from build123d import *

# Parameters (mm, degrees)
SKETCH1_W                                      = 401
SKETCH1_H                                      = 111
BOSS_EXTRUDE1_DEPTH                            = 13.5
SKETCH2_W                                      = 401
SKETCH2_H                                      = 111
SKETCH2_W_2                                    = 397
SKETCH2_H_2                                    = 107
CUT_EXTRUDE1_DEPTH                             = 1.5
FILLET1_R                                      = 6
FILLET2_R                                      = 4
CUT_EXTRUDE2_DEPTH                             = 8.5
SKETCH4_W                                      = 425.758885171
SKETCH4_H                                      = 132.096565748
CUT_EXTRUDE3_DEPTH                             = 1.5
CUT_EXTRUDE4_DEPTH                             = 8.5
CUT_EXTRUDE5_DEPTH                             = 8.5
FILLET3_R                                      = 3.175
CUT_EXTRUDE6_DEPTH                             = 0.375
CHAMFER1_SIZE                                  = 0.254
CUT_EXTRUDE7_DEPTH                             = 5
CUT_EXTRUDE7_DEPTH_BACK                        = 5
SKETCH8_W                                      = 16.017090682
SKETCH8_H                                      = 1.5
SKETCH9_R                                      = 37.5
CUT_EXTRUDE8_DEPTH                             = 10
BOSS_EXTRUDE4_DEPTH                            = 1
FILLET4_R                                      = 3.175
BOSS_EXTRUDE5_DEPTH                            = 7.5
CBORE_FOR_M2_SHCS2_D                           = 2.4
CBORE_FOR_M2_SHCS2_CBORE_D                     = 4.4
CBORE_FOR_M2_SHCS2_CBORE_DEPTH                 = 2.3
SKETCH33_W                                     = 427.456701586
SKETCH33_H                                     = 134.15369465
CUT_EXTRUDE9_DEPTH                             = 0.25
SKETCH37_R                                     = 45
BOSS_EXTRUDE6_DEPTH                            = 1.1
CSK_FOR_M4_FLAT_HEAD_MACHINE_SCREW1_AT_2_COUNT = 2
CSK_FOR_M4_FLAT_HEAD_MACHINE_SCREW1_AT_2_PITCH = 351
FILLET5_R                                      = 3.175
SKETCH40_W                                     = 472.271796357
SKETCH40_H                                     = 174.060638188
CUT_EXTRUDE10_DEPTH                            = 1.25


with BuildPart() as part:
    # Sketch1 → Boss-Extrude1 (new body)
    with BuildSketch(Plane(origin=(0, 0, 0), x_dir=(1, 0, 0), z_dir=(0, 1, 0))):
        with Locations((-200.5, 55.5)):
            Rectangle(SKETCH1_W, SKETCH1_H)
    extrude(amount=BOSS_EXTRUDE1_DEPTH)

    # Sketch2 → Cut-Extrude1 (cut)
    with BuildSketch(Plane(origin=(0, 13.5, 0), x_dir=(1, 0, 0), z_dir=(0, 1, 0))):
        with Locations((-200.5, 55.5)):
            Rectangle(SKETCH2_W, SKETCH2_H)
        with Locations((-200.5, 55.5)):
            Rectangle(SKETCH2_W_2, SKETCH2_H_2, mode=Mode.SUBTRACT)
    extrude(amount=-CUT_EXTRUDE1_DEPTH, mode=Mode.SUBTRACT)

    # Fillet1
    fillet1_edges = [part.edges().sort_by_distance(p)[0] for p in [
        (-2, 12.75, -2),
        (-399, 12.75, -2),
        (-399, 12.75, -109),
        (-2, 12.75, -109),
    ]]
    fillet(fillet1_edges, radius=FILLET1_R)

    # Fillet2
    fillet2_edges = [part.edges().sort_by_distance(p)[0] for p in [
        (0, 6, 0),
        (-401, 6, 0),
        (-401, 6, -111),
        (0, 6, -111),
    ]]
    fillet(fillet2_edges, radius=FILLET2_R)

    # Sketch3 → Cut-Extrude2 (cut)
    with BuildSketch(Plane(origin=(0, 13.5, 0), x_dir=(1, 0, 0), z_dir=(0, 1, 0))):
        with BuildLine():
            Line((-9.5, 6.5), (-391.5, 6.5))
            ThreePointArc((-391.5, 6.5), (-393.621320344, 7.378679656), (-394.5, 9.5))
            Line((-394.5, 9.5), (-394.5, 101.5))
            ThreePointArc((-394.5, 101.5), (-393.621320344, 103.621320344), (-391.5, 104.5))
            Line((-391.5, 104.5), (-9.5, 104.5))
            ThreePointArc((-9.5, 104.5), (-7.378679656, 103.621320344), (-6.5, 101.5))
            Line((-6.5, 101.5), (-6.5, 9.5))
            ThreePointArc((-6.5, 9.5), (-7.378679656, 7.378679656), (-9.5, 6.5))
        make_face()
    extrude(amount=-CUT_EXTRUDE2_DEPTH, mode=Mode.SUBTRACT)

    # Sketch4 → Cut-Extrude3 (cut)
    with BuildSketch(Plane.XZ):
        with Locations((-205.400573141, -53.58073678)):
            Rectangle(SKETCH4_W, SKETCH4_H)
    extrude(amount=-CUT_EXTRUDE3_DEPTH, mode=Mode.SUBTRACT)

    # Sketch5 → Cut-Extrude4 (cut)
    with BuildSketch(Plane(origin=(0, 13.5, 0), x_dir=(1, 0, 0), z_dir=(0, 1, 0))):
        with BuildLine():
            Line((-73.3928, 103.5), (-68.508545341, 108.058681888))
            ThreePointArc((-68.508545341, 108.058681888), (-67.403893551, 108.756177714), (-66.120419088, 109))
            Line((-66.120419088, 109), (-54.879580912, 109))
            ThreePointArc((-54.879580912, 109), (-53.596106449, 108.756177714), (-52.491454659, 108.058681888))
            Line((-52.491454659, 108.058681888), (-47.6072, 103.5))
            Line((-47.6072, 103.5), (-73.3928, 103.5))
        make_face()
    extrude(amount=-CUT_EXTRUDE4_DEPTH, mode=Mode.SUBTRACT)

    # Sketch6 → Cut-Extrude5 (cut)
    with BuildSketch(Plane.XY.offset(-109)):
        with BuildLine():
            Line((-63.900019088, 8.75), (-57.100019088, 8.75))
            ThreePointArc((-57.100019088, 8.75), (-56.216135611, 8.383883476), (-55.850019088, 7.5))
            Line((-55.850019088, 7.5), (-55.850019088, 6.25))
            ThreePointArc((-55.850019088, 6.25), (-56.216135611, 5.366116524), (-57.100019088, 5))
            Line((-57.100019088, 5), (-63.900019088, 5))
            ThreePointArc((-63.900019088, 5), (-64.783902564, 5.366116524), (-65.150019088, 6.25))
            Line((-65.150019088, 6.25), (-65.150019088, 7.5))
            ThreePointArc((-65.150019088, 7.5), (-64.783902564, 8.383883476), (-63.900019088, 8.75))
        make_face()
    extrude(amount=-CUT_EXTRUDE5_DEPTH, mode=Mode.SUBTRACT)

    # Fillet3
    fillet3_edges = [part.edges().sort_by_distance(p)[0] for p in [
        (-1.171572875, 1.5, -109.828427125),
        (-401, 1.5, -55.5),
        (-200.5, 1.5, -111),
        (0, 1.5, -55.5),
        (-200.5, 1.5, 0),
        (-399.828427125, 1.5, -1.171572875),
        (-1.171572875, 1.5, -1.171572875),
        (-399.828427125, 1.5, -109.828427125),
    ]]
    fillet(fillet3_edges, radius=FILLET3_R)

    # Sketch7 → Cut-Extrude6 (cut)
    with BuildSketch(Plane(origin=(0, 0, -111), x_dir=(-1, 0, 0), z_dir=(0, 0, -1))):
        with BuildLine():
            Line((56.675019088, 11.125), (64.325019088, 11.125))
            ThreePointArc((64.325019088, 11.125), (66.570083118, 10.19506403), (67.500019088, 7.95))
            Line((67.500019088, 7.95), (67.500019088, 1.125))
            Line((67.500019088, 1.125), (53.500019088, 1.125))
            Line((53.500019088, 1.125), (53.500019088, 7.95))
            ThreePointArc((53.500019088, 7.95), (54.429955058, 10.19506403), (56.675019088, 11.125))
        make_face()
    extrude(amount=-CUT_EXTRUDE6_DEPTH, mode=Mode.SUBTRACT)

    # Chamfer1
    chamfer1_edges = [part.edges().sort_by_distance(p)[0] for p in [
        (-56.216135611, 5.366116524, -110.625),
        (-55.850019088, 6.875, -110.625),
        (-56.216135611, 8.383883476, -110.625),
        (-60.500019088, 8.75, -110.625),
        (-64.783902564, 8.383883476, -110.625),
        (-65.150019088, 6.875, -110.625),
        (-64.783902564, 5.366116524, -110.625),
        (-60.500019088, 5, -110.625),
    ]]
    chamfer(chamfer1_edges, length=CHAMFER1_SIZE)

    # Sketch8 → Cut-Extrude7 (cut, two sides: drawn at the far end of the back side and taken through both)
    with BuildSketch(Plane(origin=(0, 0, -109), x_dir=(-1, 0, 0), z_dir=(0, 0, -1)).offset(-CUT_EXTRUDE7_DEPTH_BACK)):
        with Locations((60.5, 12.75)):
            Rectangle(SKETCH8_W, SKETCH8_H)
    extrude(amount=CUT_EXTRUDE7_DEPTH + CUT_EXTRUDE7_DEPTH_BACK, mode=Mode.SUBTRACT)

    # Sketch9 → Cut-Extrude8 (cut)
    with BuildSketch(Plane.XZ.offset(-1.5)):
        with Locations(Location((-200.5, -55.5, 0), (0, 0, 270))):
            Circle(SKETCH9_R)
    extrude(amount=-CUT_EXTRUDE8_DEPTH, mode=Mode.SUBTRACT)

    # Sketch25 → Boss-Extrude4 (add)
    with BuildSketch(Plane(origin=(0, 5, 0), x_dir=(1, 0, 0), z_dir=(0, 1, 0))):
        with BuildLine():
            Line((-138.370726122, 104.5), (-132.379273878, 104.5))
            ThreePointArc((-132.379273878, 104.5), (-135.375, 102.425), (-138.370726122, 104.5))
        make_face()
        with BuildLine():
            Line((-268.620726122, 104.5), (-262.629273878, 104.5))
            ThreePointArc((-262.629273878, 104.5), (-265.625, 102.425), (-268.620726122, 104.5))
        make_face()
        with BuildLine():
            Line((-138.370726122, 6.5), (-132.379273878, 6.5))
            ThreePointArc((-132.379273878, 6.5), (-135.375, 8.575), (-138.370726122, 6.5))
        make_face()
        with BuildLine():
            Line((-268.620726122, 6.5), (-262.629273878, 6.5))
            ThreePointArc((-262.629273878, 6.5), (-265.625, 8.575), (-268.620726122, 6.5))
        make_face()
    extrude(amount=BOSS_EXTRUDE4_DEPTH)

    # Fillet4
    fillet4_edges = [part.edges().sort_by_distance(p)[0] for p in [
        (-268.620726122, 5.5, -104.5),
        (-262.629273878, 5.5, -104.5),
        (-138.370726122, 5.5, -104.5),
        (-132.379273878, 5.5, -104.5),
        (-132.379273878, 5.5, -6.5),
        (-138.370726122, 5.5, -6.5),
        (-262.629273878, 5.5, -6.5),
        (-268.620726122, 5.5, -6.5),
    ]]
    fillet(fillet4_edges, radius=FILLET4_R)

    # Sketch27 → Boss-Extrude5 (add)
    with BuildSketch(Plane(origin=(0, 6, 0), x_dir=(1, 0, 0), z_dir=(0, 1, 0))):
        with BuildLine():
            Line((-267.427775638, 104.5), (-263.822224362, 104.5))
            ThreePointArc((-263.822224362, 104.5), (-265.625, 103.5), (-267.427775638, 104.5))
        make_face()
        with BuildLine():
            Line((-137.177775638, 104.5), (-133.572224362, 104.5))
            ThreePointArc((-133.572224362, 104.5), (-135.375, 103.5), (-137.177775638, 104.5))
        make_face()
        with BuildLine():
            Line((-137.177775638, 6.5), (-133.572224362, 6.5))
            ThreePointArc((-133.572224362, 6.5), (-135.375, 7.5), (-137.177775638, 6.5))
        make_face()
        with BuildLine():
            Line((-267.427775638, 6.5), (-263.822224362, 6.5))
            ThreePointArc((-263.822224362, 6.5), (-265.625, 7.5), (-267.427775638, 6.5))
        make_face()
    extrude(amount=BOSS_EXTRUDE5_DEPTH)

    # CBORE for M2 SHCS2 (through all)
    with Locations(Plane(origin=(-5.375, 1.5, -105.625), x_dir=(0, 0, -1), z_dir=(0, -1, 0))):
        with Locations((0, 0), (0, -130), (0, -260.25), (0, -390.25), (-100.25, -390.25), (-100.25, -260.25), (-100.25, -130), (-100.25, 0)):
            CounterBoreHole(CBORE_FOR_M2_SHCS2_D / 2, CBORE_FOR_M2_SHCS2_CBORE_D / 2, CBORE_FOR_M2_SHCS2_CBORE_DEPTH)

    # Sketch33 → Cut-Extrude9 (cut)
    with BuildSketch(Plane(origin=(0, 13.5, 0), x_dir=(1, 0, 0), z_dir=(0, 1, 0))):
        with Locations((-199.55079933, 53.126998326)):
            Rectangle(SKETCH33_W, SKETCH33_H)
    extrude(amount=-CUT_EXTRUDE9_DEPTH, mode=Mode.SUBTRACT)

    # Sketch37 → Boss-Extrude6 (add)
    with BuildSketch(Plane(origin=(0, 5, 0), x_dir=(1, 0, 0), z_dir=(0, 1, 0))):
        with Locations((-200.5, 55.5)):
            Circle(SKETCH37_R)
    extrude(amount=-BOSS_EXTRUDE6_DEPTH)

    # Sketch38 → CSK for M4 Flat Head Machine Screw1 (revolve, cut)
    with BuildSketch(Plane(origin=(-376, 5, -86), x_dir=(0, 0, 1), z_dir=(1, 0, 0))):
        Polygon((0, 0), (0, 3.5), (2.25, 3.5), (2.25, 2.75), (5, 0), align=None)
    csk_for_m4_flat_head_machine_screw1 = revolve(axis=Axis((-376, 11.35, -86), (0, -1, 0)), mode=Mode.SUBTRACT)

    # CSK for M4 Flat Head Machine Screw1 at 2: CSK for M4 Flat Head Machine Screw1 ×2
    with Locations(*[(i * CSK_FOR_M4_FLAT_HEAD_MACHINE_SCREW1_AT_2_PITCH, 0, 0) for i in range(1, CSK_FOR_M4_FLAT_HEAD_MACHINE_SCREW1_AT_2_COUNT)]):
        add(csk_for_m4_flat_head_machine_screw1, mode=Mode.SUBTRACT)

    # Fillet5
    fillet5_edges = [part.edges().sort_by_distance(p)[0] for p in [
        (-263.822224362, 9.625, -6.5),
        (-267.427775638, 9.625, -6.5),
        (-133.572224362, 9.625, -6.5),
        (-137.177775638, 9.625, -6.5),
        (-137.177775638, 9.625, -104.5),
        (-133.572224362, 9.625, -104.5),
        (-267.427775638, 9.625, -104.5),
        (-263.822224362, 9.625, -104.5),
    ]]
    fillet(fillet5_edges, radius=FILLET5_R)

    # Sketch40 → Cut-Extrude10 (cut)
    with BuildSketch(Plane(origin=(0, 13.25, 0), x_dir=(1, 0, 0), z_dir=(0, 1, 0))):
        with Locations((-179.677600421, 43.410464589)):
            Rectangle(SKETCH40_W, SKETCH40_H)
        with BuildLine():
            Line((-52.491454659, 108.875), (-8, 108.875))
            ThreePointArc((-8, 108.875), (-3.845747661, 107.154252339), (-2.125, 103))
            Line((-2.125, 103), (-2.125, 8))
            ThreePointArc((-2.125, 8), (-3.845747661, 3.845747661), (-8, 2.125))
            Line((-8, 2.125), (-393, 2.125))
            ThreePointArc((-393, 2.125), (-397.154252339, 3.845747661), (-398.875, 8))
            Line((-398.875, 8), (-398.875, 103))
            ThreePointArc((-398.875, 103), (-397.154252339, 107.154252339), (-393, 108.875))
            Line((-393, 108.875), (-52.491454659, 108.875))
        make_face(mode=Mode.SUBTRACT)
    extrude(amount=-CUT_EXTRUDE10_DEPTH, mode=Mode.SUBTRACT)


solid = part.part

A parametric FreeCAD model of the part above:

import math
import FreeCAD as App
import Part
import Sketcher
Q = App.Units.Quantity


def edges_at(feature, points):
    """Names of the edges that pass closest to the given points."""
    edges = feature.Shape.Edges
    near = lambda p: min(range(len(edges)), key=lambda i: edges[i].distToShape(Part.Vertex(*p))[0])
    return sorted({f"Edge{near(p) + 1}" for p in points})

doc = App.newDocument("Part")
params = doc.addObject("Spreadsheet::Sheet", "Params")
for row, (alias, value) in enumerate([
    ("sketch1_width", "401 mm"),
    ("sketch1_height", "111 mm"),
    ("pad1_length", "13.5 mm"),
    ("sketch2_width", "401 mm"),
    ("sketch2_width2", "397 mm"),
    ("sketch2_height", "111 mm"),
    ("sketch2_height2", "107 mm"),
    ("pocket1_length", "1.5 mm"),
    ("fillet_radius", "6 mm"),
    ("fillet2_radius", "4 mm"),
    ("sketch3_radius", "3 mm"),
    ("sketch3_width", "382 mm"),
    ("sketch3_height", "92 mm"),
    ("pocket2_length", "8.5 mm"),
    ("pocket3_length", "1.5 mm"),
    ("sketch5_radius", "3.5 mm"),
    ("pocket4_length", "8.5 mm"),
    ("sketch6_radius", "1.25 mm"),
    ("sketch6_width", "6.8 mm"),
    ("sketch6_height", "1.25 mm"),
    ("pocket5_length", "8.5 mm"),
    ("fillet3_radius", "3.175 mm"),
    ("sketch7_width", "14 mm"),
    ("pocket6_length", "0.375 mm"),
    ("chamfer_size", "0.254 mm"),
    ("sketch8_height", "1.5 mm"),
    ("pocket7_length", "5 mm"),
    ("pocket7_length2", "5 mm"),
    ("sketch9_diameter", "75 mm"),
    ("pocket8_length", "10 mm"),
    ("sketch10_radius", "3.2 mm"),
    ("pad2_length", "1 mm"),
    ("fillet4_radius", "3.175 mm"),
    ("pad3_length", "7.5 mm"),
    ("sketch12_diameter", "2.4 mm"),
    ("hole_diameter", "2.4 mm"),
    ("hole_cbore_diameter", "4.4 mm"),
    ("hole_cbore_depth", "2.3 mm"),
    ("pocket9_length", "0.25 mm"),
    ("sketch14_diameter", "90 mm"),
    ("pad4_length", "1.1 mm"),
    ("sketch15_height", "5 mm"),
    ("sketch15_width", "3.5 mm"),
    ("sketch15_width2", "0.75 mm"),
    ("groove_angle", "360 deg"),
    ("linearpattern_pitch", "351 mm"),
    ("fillet5_radius", "3.175 mm"),
    ("sketch16_width", "385 mm"),
    ("sketch16_height", "95 mm"),
    ("pocket10_length", "1.25 mm"),
], start=1):
    params.set(f"A{row}", alias)
    params.set(f"B{row}", "=" + value)
    params.setAlias(f"B{row}", alias)

body = doc.addObject("PartDesign::Body", "Body")

# Sketch on XZ plane
sketch1 = body.newObject("Sketcher::SketchObject", "Sketch")
sketch1.AttachmentSupport = (doc.getObject("XZ_Plane"), [""])
sketch1.MapMode = "FlatFace"
sketch1.addGeometry([
    Part.LineSegment(App.Vector(-401, -111, 0), App.Vector(-401, 0, 0)),
    Part.LineSegment(App.Vector(-401, 0, 0), App.Vector(0, 0, 0)),
    Part.LineSegment(App.Vector(0, 0, 0), App.Vector(0, -111, 0)),
    Part.LineSegment(App.Vector(0, -111, 0), App.Vector(-401, -111, 0)),
], False)
sketch1.addConstraint([
    Sketcher.Constraint("Coincident", 0, 2, 1, 1),
    Sketcher.Constraint("Coincident", 1, 2, 2, 1),
    Sketcher.Constraint("Coincident", 2, 2, 3, 1),
    Sketcher.Constraint("Coincident", 3, 2, 0, 1),
    Sketcher.Constraint("Vertical", 0),
    Sketcher.Constraint("Horizontal", 1),
    Sketcher.Constraint("Vertical", 2),
    Sketcher.Constraint("Horizontal", 3),
    Sketcher.Constraint("Coincident", 1, 2, -1, 1),
    Sketcher.Constraint("DistanceX", 1, 1, 1, 2, Q("401 mm")),
    Sketcher.Constraint("DistanceY", 0, 1, 0, 2, Q("111 mm")),
])
sketch1.setExpression("Constraints[9]", "Params.sketch1_width")
sketch1.setExpression("Constraints[10]", "Params.sketch1_height")
pad1 = body.newObject("PartDesign::Pad", "Pad")
pad1.Profile = sketch1
pad1.setExpression("Length", "Params.pad1_length")
pad1.Reversed = True

# Sketch on XZ plane
sketch2 = body.newObject("Sketcher::SketchObject", "Sketch001")
sketch2.AttachmentSupport = (doc.getObject("XZ_Plane"), [""])
sketch2.MapMode = "FlatFace"
sketch2.AttachmentOffset = App.Placement(App.Vector(0, 0, -13.5), App.Rotation())
sketch2.addGeometry([
    Part.LineSegment(App.Vector(-401, -111, 0), App.Vector(-401, 0, 0)),  # 0
    Part.LineSegment(App.Vector(-401, 0, 0), App.Vector(0, 0, 0)),  # 1
    Part.LineSegment(App.Vector(0, 0, 0), App.Vector(0, -111, 0)),  # 2
    Part.LineSegment(App.Vector(0, -111, 0), App.Vector(-401, -111, 0)),  # 3
    Part.LineSegment(App.Vector(-2, -2, 0), App.Vector(-399, -2, 0)),  # 4
    Part.LineSegment(App.Vector(-399, -2, 0), App.Vector(-399, -109, 0)),  # 5
    Part.LineSegment(App.Vector(-399, -109, 0), App.Vector(-2, -109, 0)),  # 6
    Part.LineSegment(App.Vector(-2, -109, 0), App.Vector(-2, -2, 0)),  # 7
], False)
sketch2.addConstraint([
    Sketcher.Constraint("Coincident", 0, 2, 1, 1),
    Sketcher.Constraint("Coincident", 1, 2, 2, 1),
    Sketcher.Constraint("Coincident", 2, 2, 3, 1),
    Sketcher.Constraint("Coincident", 3, 2, 0, 1),
    Sketcher.Constraint("Coincident", 4, 2, 5, 1),
    Sketcher.Constraint("Coincident", 5, 2, 6, 1),
    Sketcher.Constraint("Coincident", 6, 2, 7, 1),
    Sketcher.Constraint("Coincident", 7, 2, 4, 1),
    Sketcher.Constraint("Vertical", 0),
    Sketcher.Constraint("Horizontal", 1),
    Sketcher.Constraint("Vertical", 2),
    Sketcher.Constraint("Horizontal", 3),
    Sketcher.Constraint("Horizontal", 4),
    Sketcher.Constraint("Vertical", 5),
    Sketcher.Constraint("Horizontal", 6),
    Sketcher.Constraint("Vertical", 7),
    Sketcher.Constraint("Coincident", 1, 2, -1, 1),
    Sketcher.Constraint("DistanceX", 1, 1, 1, 2, Q("401 mm")),
    Sketcher.Constraint("DistanceX", 4, 2, 4, 1, Q("397 mm")),
    Sketcher.Constraint("DistanceY", 0, 1, 0, 2, Q("111 mm")),
    Sketcher.Constraint("DistanceY", 5, 2, 5, 1, Q("107 mm")),
    Sketcher.Constraint("DistanceX", 4, 2, -1, 1, Q("399 mm")),
    Sketcher.Constraint("DistanceY", 4, 2, -1, 1, Q("2 mm")),
])
sketch2.setExpression("Constraints[17]", "Params.sketch2_width")
sketch2.setExpression("Constraints[18]", "Params.sketch2_width2")
sketch2.setExpression("Constraints[19]", "Params.sketch2_height")
sketch2.setExpression("Constraints[20]", "Params.sketch2_height2")
pocket1 = body.newObject("PartDesign::Pocket", "Pocket")
pocket1.Profile = sketch2
pocket1.setExpression("Length", "Params.pocket1_length")
pocket1.Reversed = True
doc.recompute()

fillet = body.newObject("PartDesign::Fillet", "Fillet")
fillet.Base = (pocket1, edges_at(pocket1, [
    (-2, 12.75, -2),
    (-399, 12.75, -2),
    (-399, 12.75, -109),
    (-2, 12.75, -109),
]))
fillet.setExpression("Radius", "Params.fillet_radius")
doc.recompute()

fillet2 = body.newObject("PartDesign::Fillet", "Fillet001")
fillet2.Base = (fillet, edges_at(fillet, [
    (0, 6, 0),
    (-401, 6, 0),
    (-401, 6, -111),
    (0, 6, -111),
]))
fillet2.setExpression("Radius", "Params.fillet2_radius")

# Sketch on XZ plane
sketch3 = body.newObject("Sketcher::SketchObject", "Sketch002")
sketch3.AttachmentSupport = (doc.getObject("XZ_Plane"), [""])
sketch3.MapMode = "FlatFace"
sketch3.AttachmentOffset = App.Placement(App.Vector(0, 0, -13.5), App.Rotation())
sketch3.addGeometry([
    Part.LineSegment(App.Vector(-391.5, -6.5, 0), App.Vector(-9.5, -6.5, 0)),  # 0
    Part.ArcOfCircle(Part.Circle(App.Vector(-9.5, -9.5, 0), App.Vector(0, 0, 1), 3), math.radians(0), math.radians(90)),  # 1
    Part.LineSegment(App.Vector(-6.5, -9.5, 0), App.Vector(-6.5, -101.5, 0)),  # 2
    Part.ArcOfCircle(Part.Circle(App.Vector(-9.5, -101.5, 0), App.Vector(0, 0, 1), 3), math.radians(-90), math.radians(0)),  # 3
    Part.LineSegment(App.Vector(-9.5, -104.5, 0), App.Vector(-391.5, -104.5, 0)),  # 4
    Part.ArcOfCircle(Part.Circle(App.Vector(-391.5, -101.5, 0), App.Vector(0, 0, 1), 3), math.radians(180), math.radians(270)),  # 5
    Part.LineSegment(App.Vector(-394.5, -101.5, 0), App.Vector(-394.5, -9.5, 0)),  # 6
    Part.ArcOfCircle(Part.Circle(App.Vector(-391.5, -9.5, 0), App.Vector(0, 0, 1), 3), math.radians(90), math.radians(180)),  # 7
], False)
sketch3.addConstraint([
    Sketcher.Constraint("Tangent", 0, 2, 1, 2),
    Sketcher.Constraint("Tangent", 1, 1, 2, 1),
    Sketcher.Constraint("Tangent", 2, 2, 3, 2),
    Sketcher.Constraint("Tangent", 3, 1, 4, 1),
    Sketcher.Constraint("Tangent", 4, 2, 5, 2),
    Sketcher.Constraint("Tangent", 5, 1, 6, 1),
    Sketcher.Constraint("Tangent", 6, 2, 7, 2),
    Sketcher.Constraint("Tangent", 7, 1, 0, 1),
    Sketcher.Constraint("Horizontal", 0),
    Sketcher.Constraint("Vertical", 2),
    Sketcher.Constraint("Horizontal", 4),
    Sketcher.Constraint("Vertical", 6),
    Sketcher.Constraint("Equal", 1, 3),
    Sketcher.Constraint("Equal", 3, 5),
    Sketcher.Constraint("Equal", 5, 7),
    Sketcher.Constraint("Radius", 1, Q("3 mm")),
    Sketcher.Constraint("DistanceX", 0, 1, 0, 2, Q("382 mm")),
    Sketcher.Constraint("DistanceY", 2, 2, 2, 1, Q("92 mm")),
    Sketcher.Constraint("DistanceX", 1, 3, -1, 1, Q("9.5 mm")),
    Sketcher.Constraint("DistanceY", 1, 3, -1, 1, Q("9.5 mm")),
])
sketch3.setExpression("Constraints[15]", "Params.sketch3_radius")
sketch3.setExpression("Constraints[16]", "Params.sketch3_width")
sketch3.setExpression("Constraints[17]", "Params.sketch3_height")
pocket2 = body.newObject("PartDesign::Pocket", "Pocket001")
pocket2.Profile = sketch3
pocket2.setExpression("Length", "Params.pocket2_length")
pocket2.Reversed = True

# Sketch on XZ plane
sketch4 = body.newObject("Sketcher::SketchObject", "Sketch003")
sketch4.AttachmentSupport = (doc.getObject("XZ_Plane"), [""])
sketch4.MapMode = "FlatFace"
sketch4.addGeometry([
    Part.LineSegment(App.Vector(-418.280016, 12.467546, 0), App.Vector(-418.280016, -119.62902, 0)),
    Part.LineSegment(App.Vector(-418.280016, -119.62902, 0), App.Vector(7.478869, -119.62902, 0)),
    Part.LineSegment(App.Vector(7.478869, -119.62902, 0), App.Vector(7.478869, 12.467546, 0)),
    Part.LineSegment(App.Vector(7.478869, 12.467546, 0), App.Vector(-418.280016, 12.467546, 0)),
], False)
sketch4.addConstraint([
    Sketcher.Constraint("Coincident", 0, 2, 1, 1),
    Sketcher.Constraint("Coincident", 1, 2, 2, 1),
    Sketcher.Constraint("Coincident", 2, 2, 3, 1),
    Sketcher.Constraint("Coincident", 3, 2, 0, 1),
    Sketcher.Constraint("Vertical", 0),
    Sketcher.Constraint("Horizontal", 1),
    Sketcher.Constraint("Vertical", 2),
    Sketcher.Constraint("Horizontal", 3),
    Sketcher.Constraint("DistanceX", 1, 1, 1, 2, Q("425.758885 mm")),
    Sketcher.Constraint("DistanceY", 0, 2, 0, 1, Q("132.096566 mm")),
    Sketcher.Constraint("DistanceY", 0, 2, -1, 1, Q("119.62902 mm")),
    Sketcher.Constraint("DistanceX", -1, 1, 1, 2, Q("7.478869 mm")),
])
pocket3 = body.newObject("PartDesign::Pocket", "Pocket002")
pocket3.Profile = sketch4
pocket3.setExpression("Length", "Params.pocket3_length")

# Sketch on XZ plane
sketch5 = body.newObject("Sketcher::SketchObject", "Sketch004")
sketch5.AttachmentSupport = (doc.getObject("XZ_Plane"), [""])
sketch5.MapMode = "FlatFace"
sketch5.AttachmentOffset = App.Placement(App.Vector(0, 0, -13.5), App.Rotation())
sketch5.addGeometry([
    Part.LineSegment(App.Vector(-68.508545, -108.058682, 0), App.Vector(-73.3928, -103.5, 0)),  # 0
    Part.LineSegment(App.Vector(-73.3928, -103.5, 0), App.Vector(-47.6072, -103.5, 0)),  # 1
    Part.LineSegment(App.Vector(-47.6072, -103.5, 0), App.Vector(-52.491455, -108.058682, 0)),  # 2
    Part.ArcOfCircle(Part.Circle(App.Vector(-54.879581, -105.5, 0), App.Vector(0, 0, 1), 3.5), math.radians(-90), math.radians(-46.974657)),  # 3
    Part.LineSegment(App.Vector(-54.879581, -109, 0), App.Vector(-66.120419, -109, 0)),  # 4
    Part.ArcOfCircle(Part.Circle(App.Vector(-66.120419, -105.5, 0), App.Vector(0, 0, 1), 3.5), math.radians(-133.025343), math.radians(-90)),  # 5
], False)
sketch5.addConstraint([
    Sketcher.Constraint("Coincident", 0, 2, 1, 1),
    Sketcher.Constraint("Coincident", 1, 2, 2, 1),
    Sketcher.Constraint("Tangent", 2, 2, 3, 2),
    Sketcher.Constraint("Tangent", 3, 1, 4, 1),
    Sketcher.Constraint("Tangent", 4, 2, 5, 2),
    Sketcher.Constraint("Tangent", 5, 1, 0, 1),
    Sketcher.Constraint("Horizontal", 1),
    Sketcher.Constraint("Horizontal", 4),
    Sketcher.Constraint("Equal", 3, 5),
    Sketcher.Constraint("Horizontal", 2, 2, 5, 1),
    Sketcher.Constraint("Radius", 3, Q("3.5 mm")),
    Sketcher.Constraint("DistanceY", 3, 1, -1, 1, Q("109 mm")),
    Sketcher.Constraint("DistanceY", 5, 3, 0, 2, Q("2 mm")),
    Sketcher.Constraint("DistanceX", 1, 1, 1, 2, Q("25.7856 mm")),
    Sketcher.Constraint("DistanceX", 4, 2, 4, 1, Q("11.240838 mm")),
    Sketcher.Constraint("DistanceX", 0, 2, -1, 1, Q("73.3928 mm")),
])
sketch5.setExpression("Constraints[10]", "Params.sketch5_radius")
pocket4 = body.newObject("PartDesign::Pocket", "Pocket003")
pocket4.Profile = sketch5
pocket4.setExpression("Length", "Params.pocket4_length")
pocket4.Reversed = True

# Sketch on XY plane
sketch6 = body.newObject("Sketcher::SketchObject", "Sketch005")
sketch6.AttachmentSupport = (doc.getObject("XY_Plane"), [""])
sketch6.MapMode = "FlatFace"
sketch6.AttachmentOffset = App.Placement(App.Vector(0, 0, -109), App.Rotation())
sketch6.addGeometry([
    Part.LineSegment(App.Vector(-57.100019, 8.75, 0), App.Vector(-63.900019, 8.75, 0)),  # 0
    Part.ArcOfCircle(Part.Circle(App.Vector(-63.900019, 7.5, 0), App.Vector(0, 0, 1), 1.25), math.radians(90), math.radians(180)),  # 1
    Part.LineSegment(App.Vector(-65.150019, 7.5, 0), App.Vector(-65.150019, 6.25, 0)),  # 2
    Part.ArcOfCircle(Part.Circle(App.Vector(-63.900019, 6.25, 0), App.Vector(0, 0, 1), 1.25), math.radians(-180), math.radians(-90)),  # 3
    Part.LineSegment(App.Vector(-63.900019, 5, 0), App.Vector(-57.100019, 5, 0)),  # 4
    Part.ArcOfCircle(Part.Circle(App.Vector(-57.100019, 6.25, 0), App.Vector(0, 0, 1), 1.25), math.radians(-90), math.radians(0)),  # 5
    Part.LineSegment(App.Vector(-55.850019, 6.25, 0), App.Vector(-55.850019, 7.5, 0)),  # 6
    Part.ArcOfCircle(Part.Circle(App.Vector(-57.100019, 7.5, 0), App.Vector(0, 0, 1), 1.25), math.radians(0), math.radians(90)),  # 7
], False)
sketch6.addConstraint([
    Sketcher.Constraint("Tangent", 0, 2, 1, 1),
    Sketcher.Constraint("Tangent", 1, 2, 2, 1),
    Sketcher.Constraint("Tangent", 2, 2, 3, 1),
    Sketcher.Constraint("Tangent", 3, 2, 4, 1),
    Sketcher.Constraint("Tangent", 4, 2, 5, 1),
    Sketcher.Constraint("Tangent", 5, 2, 6, 1),
    Sketcher.Constraint("Tangent", 6, 2, 7, 1),
    Sketcher.Constraint("Tangent", 7, 2, 0, 1),
    Sketcher.Constraint("Horizontal", 0),
    Sketcher.Constraint("Vertical", 2),
    Sketcher.Constraint("Horizontal", 4),
    Sketcher.Constraint("Vertical", 6),
    Sketcher.Constraint("Equal", 1, 3),
    Sketcher.Constraint("Equal", 3, 5),
    Sketcher.Constraint("Equal", 5, 7),
    Sketcher.Constraint("Radius", 1, Q("1.25 mm")),
    Sketcher.Constraint("DistanceX", 0, 2, 0, 1, Q("6.8 mm")),
    Sketcher.Constraint("DistanceY", -1, 1, 3, 2, Q("5 mm")),
    Sketcher.Constraint("DistanceY", 2, 2, 2, 1, Q("1.25 mm")),
    Sketcher.Constraint("DistanceX", 1, 3, -1, 1, Q("63.900019 mm")),
])
sketch6.setExpression("Constraints[15]", "Params.sketch6_radius")
sketch6.setExpression("Constraints[16]", "Params.sketch6_width")
sketch6.setExpression("Constraints[18]", "Params.sketch6_height")
pocket5 = body.newObject("PartDesign::Pocket", "Pocket004")
pocket5.Profile = sketch6
pocket5.setExpression("Length", "Params.pocket5_length")
doc.recompute()

fillet3 = body.newObject("PartDesign::Fillet", "Fillet002")
fillet3.Base = (pocket5, edges_at(pocket5, [
    (-1.172, 1.5, -109.828),
    (-401, 1.5, -55.5),
    (-200.5, 1.5, -111),
    (0, 1.5, -55.5),
    (-200.5, 1.5, 0),
    (-399.828, 1.5, -1.172),
    (-1.172, 1.5, -1.172),
    (-399.828, 1.5, -109.828),
]))
fillet3.setExpression("Radius", "Params.fillet3_radius")

# Sketch on XY plane
sketch7 = body.newObject("Sketcher::SketchObject", "Sketch006")
sketch7.AttachmentSupport = (doc.getObject("XY_Plane"), [""])
sketch7.MapMode = "FlatFace"
sketch7.AttachmentOffset = App.Placement(App.Vector(0, 0, -111), App.Rotation())
sketch7.addGeometry([
    Part.LineSegment(App.Vector(-64.325019, 11.125, 0), App.Vector(-56.675019, 11.125, 0)),  # 0
    Part.ArcOfCircle(Part.Circle(App.Vector(-56.675019, 7.95, 0), App.Vector(0, 0, 1), 3.175), math.radians(0), math.radians(90)),  # 1
    Part.LineSegment(App.Vector(-53.500019, 7.95, 0), App.Vector(-53.500019, 1.125, 0)),  # 2
    Part.LineSegment(App.Vector(-53.500019, 1.125, 0), App.Vector(-67.500019, 1.125, 0)),  # 3
    Part.LineSegment(App.Vector(-67.500019, 1.125, 0), App.Vector(-67.500019, 7.95, 0)),  # 4
    Part.ArcOfCircle(Part.Circle(App.Vector(-64.325019, 7.95, 0), App.Vector(0, 0, 1), 3.175), math.radians(90), math.radians(180)),  # 5
], False)
sketch7.addConstraint([
    Sketcher.Constraint("Tangent", 0, 2, 1, 2),
    Sketcher.Constraint("Tangent", 1, 1, 2, 1),
    Sketcher.Constraint("Coincident", 2, 2, 3, 1),
    Sketcher.Constraint("Coincident", 3, 2, 4, 1),
    Sketcher.Constraint("Tangent", 4, 2, 5, 2),
    Sketcher.Constraint("Tangent", 5, 1, 0, 1),
    Sketcher.Constraint("Horizontal", 0),
    Sketcher.Constraint("Vertical", 2),
    Sketcher.Constraint("Horizontal", 3),
    Sketcher.Constraint("Vertical", 4),
    Sketcher.Constraint("Equal", 1, 5),
    Sketcher.Constraint("DistanceX", 3, 2, 3, 1, Q("14 mm")),
    Sketcher.Constraint("Radius", 1, Q("3.175 mm")),
    Sketcher.Constraint("DistanceY", 2, 2, 0, 2, Q("10 mm")),
    Sketcher.Constraint("DistanceY", -1, 1, 1, 3, Q("7.95 mm")),
    Sketcher.Constraint("DistanceX", 1, 3, -1, 1, Q("56.675019 mm")),
])
sketch7.setExpression("Constraints[11]", "Params.sketch7_width")
pocket6 = body.newObject("PartDesign::Pocket", "Pocket005")
pocket6.Profile = sketch7
pocket6.setExpression("Length", "Params.pocket6_length")
pocket6.Reversed = True
doc.recompute()

chamfer = body.newObject("PartDesign::Chamfer", "Chamfer")
chamfer.Base = (pocket6, edges_at(pocket6, [
    (-56.216, 5.366, -110.625),
    (-55.85, 6.875, -110.625),
    (-56.216, 8.384, -110.625),
    (-60.5, 8.75, -110.625),
    (-64.784, 8.384, -110.625),
    (-65.15, 6.875, -110.625),
    (-64.784, 5.366, -110.625),
    (-60.5, 5, -110.625),
]))
chamfer.setExpression("Size", "Params.chamfer_size")

# Sketch on XY plane
sketch8 = body.newObject("Sketcher::SketchObject", "Sketch007")
sketch8.AttachmentSupport = (doc.getObject("XY_Plane"), [""])
sketch8.MapMode = "FlatFace"
sketch8.AttachmentOffset = App.Placement(App.Vector(0, 0, -109), App.Rotation())
sketch8.addGeometry([
    Part.LineSegment(App.Vector(-52.491455, 13.5, 0), App.Vector(-52.491455, 12, 0)),
    Part.LineSegment(App.Vector(-52.491455, 12, 0), App.Vector(-68.508545, 12, 0)),
    Part.LineSegment(App.Vector(-68.508545, 12, 0), App.Vector(-68.508545, 13.5, 0)),
    Part.LineSegment(App.Vector(-68.508545, 13.5, 0), App.Vector(-52.491455, 13.5, 0)),
], False)
sketch8.addConstraint([
    Sketcher.Constraint("Coincident", 0, 2, 1, 1),
    Sketcher.Constraint("Coincident", 1, 2, 2, 1),
    Sketcher.Constraint("Coincident", 2, 2, 3, 1),
    Sketcher.Constraint("Coincident", 3, 2, 0, 1),
    Sketcher.Constraint("Vertical", 0),
    Sketcher.Constraint("Horizontal", 1),
    Sketcher.Constraint("Vertical", 2),
    Sketcher.Constraint("Horizontal", 3),
    Sketcher.Constraint("DistanceY", 0, 2, 0, 1, Q("1.5 mm")),
    Sketcher.Constraint("DistanceY", -1, 1, 0, 2, Q("12 mm")),
    Sketcher.Constraint("DistanceX", 1, 2, 1, 1, Q("16.017091 mm")),
    Sketcher.Constraint("DistanceX", 0, 2, -1, 1, Q("52.491455 mm")),
])
sketch8.setExpression("Constraints[8]", "Params.sketch8_height")
pocket7 = body.newObject("PartDesign::Pocket", "Pocket006")
pocket7.Profile = sketch8
pocket7.Type = "TwoLengths"
pocket7.setExpression("Length", "Params.pocket7_length")
pocket7.setExpression("Length2", "Params.pocket7_length2")

# Sketch on XZ plane
sketch9 = body.newObject("Sketcher::SketchObject", "Sketch008")
sketch9.AttachmentSupport = (doc.getObject("XZ_Plane"), [""])
sketch9.MapMode = "FlatFace"
sketch9.AttachmentOffset = App.Placement(App.Vector(0, 0, -1.5), App.Rotation())
sketch9.addGeometry(Part.Circle(App.Vector(-200.5, -55.5, 0), App.Vector(0, 0, 1), 37.5), False)
sketch9.addConstraint([
    Sketcher.Constraint("Diameter", 0, Q("75 mm")),
    Sketcher.Constraint("DistanceX", 0, 3, -1, 1, Q("200.5 mm")),
    Sketcher.Constraint("DistanceY", 0, 3, -1, 1, Q("55.5 mm")),
])
sketch9.setExpression("Constraints[0]", "Params.sketch9_diameter")
pocket8 = body.newObject("PartDesign::Pocket", "Pocket007")
pocket8.Profile = sketch9
pocket8.setExpression("Length", "Params.pocket8_length")

# Sketch on XZ plane
sketch10 = body.newObject("Sketcher::SketchObject", "Sketch009")
sketch10.AttachmentSupport = (doc.getObject("XZ_Plane"), [""])
sketch10.MapMode = "FlatFace"
sketch10.AttachmentOffset = App.Placement(App.Vector(0, 0, -5), App.Rotation())
sketch10.addGeometry([
    Part.LineSegment(App.Vector(-132.379274, -104.5, 0), App.Vector(-138.370726, -104.5, 0)),  # 0
    Part.ArcOfCircle(Part.Circle(App.Vector(-135.375, -105.625, 0), App.Vector(0, 0, 1), 3.2), math.radians(20.582914), math.radians(159.417086)),  # 1
    Part.LineSegment(App.Vector(-262.629274, -104.5, 0), App.Vector(-268.620726, -104.5, 0)),  # 2
    Part.ArcOfCircle(Part.Circle(App.Vector(-265.625, -105.625, 0), App.Vector(0, 0, 1), 3.2), math.radians(20.582914), math.radians(159.417086)),  # 3
    Part.LineSegment(App.Vector(-138.370726, -6.5, 0), App.Vector(-132.379274, -6.5, 0)),  # 4
    Part.ArcOfCircle(Part.Circle(App.Vector(-135.375, -5.375, 0), App.Vector(0, 0, 1), 3.2), math.radians(-159.417086), math.radians(-20.582914)),  # 5
    Part.LineSegment(App.Vector(-268.620726, -6.5, 0), App.Vector(-262.629274, -6.5, 0)),  # 6
    Part.ArcOfCircle(Part.Circle(App.Vector(-265.625, -5.375, 0), App.Vector(0, 0, 1), 3.2), math.radians(-159.417086), math.radians(-20.582914)),  # 7
], False)
sketch10.addConstraint([
    Sketcher.Constraint("Coincident", 0, 1, 1, 1),
    Sketcher.Constraint("Coincident", 1, 2, 0, 2),
    Sketcher.Constraint("Coincident", 2, 1, 3, 1),
    Sketcher.Constraint("Coincident", 3, 2, 2, 2),
    Sketcher.Constraint("Coincident", 4, 1, 5, 1),
    Sketcher.Constraint("Coincident", 5, 2, 4, 2),
    Sketcher.Constraint("Coincident", 6, 1, 7, 1),
    Sketcher.Constraint("Coincident", 7, 2, 6, 2),
    Sketcher.Constraint("Horizontal", 0),
    Sketcher.Constraint("Horizontal", 2),
    Sketcher.Constraint("Horizontal", 4),
    Sketcher.Constraint("Horizontal", 6),
    Sketcher.Constraint("Equal", 1, 3),
    Sketcher.Constraint("Equal", 3, 5),
    Sketcher.Constraint("Equal", 5, 7),
    Sketcher.Constraint("Horizontal", 1, 3, 3, 3),
    Sketcher.Constraint("Horizontal", 5, 3, 7, 3),
    Sketcher.Constraint("Horizontal", 1, 2, 2, 1),
    Sketcher.Constraint("Horizontal", 5, 2, 6, 1),
    Sketcher.Constraint("Vertical", 1, 3, 5, 3),
    Sketcher.Constraint("Vertical", 3, 3, 7, 3),
    Sketcher.Constraint("Vertical", 1, 2, 4, 1),
    Sketcher.Constraint("Radius", 1, Q("3.2 mm")),
    Sketcher.Constraint("DistanceY", 1, 2, 4, 1, Q("98 mm")),
    Sketcher.Constraint("DistanceY", 0, 1, -1, 1, Q("104.5 mm")),
    Sketcher.Constraint("DistanceX", 3, 3, 1, 3, Q("130.25 mm")),
    Sketcher.Constraint("DistanceY", 1, 3, 5, 3, Q("100.25 mm")),
    Sketcher.Constraint("DistanceX", 1, 3, -1, 1, Q("135.375 mm")),
])
sketch10.setExpression("Constraints[22]", "Params.sketch10_radius")
pad2 = body.newObject("PartDesign::Pad", "Pad001")
pad2.Profile = sketch10
pad2.setExpression("Length", "Params.pad2_length")
pad2.Reversed = True
doc.recompute()

fillet4 = body.newObject("PartDesign::Fillet", "Fillet003")
fillet4.Base = (pad2, edges_at(pad2, [
    (-268.621, 5.5, -104.5),
    (-262.629, 5.5, -104.5),
    (-138.371, 5.5, -104.5),
    (-132.379, 5.5, -104.5),
    (-132.379, 5.5, -6.5),
    (-138.371, 5.5, -6.5),
    (-262.629, 5.5, -6.5),
    (-268.621, 5.5, -6.5),
]))
fillet4.setExpression("Radius", "Params.fillet4_radius")

# Sketch on XZ plane
sketch11 = body.newObject("Sketcher::SketchObject", "Sketch010")
sketch11.AttachmentSupport = (doc.getObject("XZ_Plane"), [""])
sketch11.MapMode = "FlatFace"
sketch11.AttachmentOffset = App.Placement(App.Vector(0, 0, -6), App.Rotation())
sketch11.addGeometry([
    Part.LineSegment(App.Vector(-263.822224, -104.5, 0), App.Vector(-267.427776, -104.5, 0)),  # 0
    Part.ArcOfCircle(Part.Circle(App.Vector(-265.625, -105.625, 0), App.Vector(0, 0, 1), 2.125), math.radians(31.965719), math.radians(148.034281)),  # 1
    Part.LineSegment(App.Vector(-133.572224, -104.5, 0), App.Vector(-137.177776, -104.5, 0)),  # 2
    Part.ArcOfCircle(Part.Circle(App.Vector(-135.375, -105.625, 0), App.Vector(0, 0, 1), 2.125), math.radians(31.965719), math.radians(148.034281)),  # 3
    Part.LineSegment(App.Vector(-137.177776, -6.5, 0), App.Vector(-133.572224, -6.5, 0)),  # 4
    Part.ArcOfCircle(Part.Circle(App.Vector(-135.375, -5.375, 0), App.Vector(0, 0, 1), 2.125), math.radians(-148.034281), math.radians(-31.965719)),  # 5
    Part.LineSegment(App.Vector(-267.427776, -6.5, 0), App.Vector(-263.822224, -6.5, 0)),  # 6
    Part.ArcOfCircle(Part.Circle(App.Vector(-265.625, -5.375, 0), App.Vector(0, 0, 1), 2.125), math.radians(-148.034281), math.radians(-31.965719)),  # 7
], False)
sketch11.addConstraint([
    Sketcher.Constraint("Coincident", 0, 1, 1, 1),
    Sketcher.Constraint("Coincident", 1, 2, 0, 2),
    Sketcher.Constraint("Coincident", 2, 1, 3, 1),
    Sketcher.Constraint("Coincident", 3, 2, 2, 2),
    Sketcher.Constraint("Coincident", 4, 1, 5, 1),
    Sketcher.Constraint("Coincident", 5, 2, 4, 2),
    Sketcher.Constraint("Coincident", 6, 1, 7, 1),
    Sketcher.Constraint("Coincident", 7, 2, 6, 2),
    Sketcher.Constraint("Horizontal", 0),
    Sketcher.Constraint("Horizontal", 2),
    Sketcher.Constraint("Horizontal", 4),
    Sketcher.Constraint("Horizontal", 6),
    Sketcher.Constraint("Equal", 1, 3),
    Sketcher.Constraint("Equal", 3, 5),
    Sketcher.Constraint("Equal", 5, 7),
    Sketcher.Constraint("Horizontal", 1, 3, 3, 3),
    Sketcher.Constraint("Horizontal", 5, 3, 7, 3),
    Sketcher.Constraint("Horizontal", 1, 2, 2, 1),
    Sketcher.Constraint("Horizontal", 5, 2, 6, 1),
    Sketcher.Constraint("Vertical", 3, 3, 5, 3),
    Sketcher.Constraint("Vertical", 1, 3, 7, 3),
    Sketcher.Constraint("Vertical", 3, 2, 4, 1),
    Sketcher.Constraint("Radius", 1, Q("2.125 mm")),
    Sketcher.Constraint("DistanceY", 3, 2, 4, 1, Q("98 mm")),
    Sketcher.Constraint("DistanceY", 0, 1, -1, 1, Q("104.5 mm")),
    Sketcher.Constraint("DistanceX", 1, 3, 3, 3, Q("130.25 mm")),
    Sketcher.Constraint("DistanceY", 3, 3, 5, 3, Q("100.25 mm")),
    Sketcher.Constraint("DistanceX", 1, 3, -1, 1, Q("265.625 mm")),
])
pad3 = body.newObject("PartDesign::Pad", "Pad002")
pad3.Profile = sketch11
pad3.setExpression("Length", "Params.pad3_length")
pad3.Reversed = True

# Sketch on XZ plane
sketch12 = body.newObject("Sketcher::SketchObject", "Sketch011")
sketch12.AttachmentSupport = (doc.getObject("XZ_Plane"), [""])
sketch12.MapMode = "FlatFace"
sketch12.AttachmentOffset = App.Placement(App.Vector(0, 0, -1.5), App.Rotation())
sketch12.addGeometry([
    Part.Circle(App.Vector(-5.375, -105.625, 0), App.Vector(0, 0, 1), 1.2),  # 0
    Part.Circle(App.Vector(-135.375, -105.625, 0), App.Vector(0, 0, 1), 1.2),  # 1
    Part.Circle(App.Vector(-265.625, -105.625, 0), App.Vector(0, 0, 1), 1.2),  # 2
    Part.Circle(App.Vector(-395.625, -105.625, 0), App.Vector(0, 0, 1), 1.2),  # 3
    Part.Circle(App.Vector(-395.625, -5.375, 0), App.Vector(0, 0, 1), 1.2),  # 4
    Part.Circle(App.Vector(-265.625, -5.375, 0), App.Vector(0, 0, 1), 1.2),  # 5
    Part.Circle(App.Vector(-135.375, -5.375, 0), App.Vector(0, 0, 1), 1.2),  # 6
    Part.Circle(App.Vector(-5.375, -5.375, 0), App.Vector(0, 0, 1), 1.2),  # 7
], False)
sketch12.addConstraint([
    Sketcher.Constraint("Equal", 0, 1),
    Sketcher.Constraint("Equal", 1, 2),
    Sketcher.Constraint("Equal", 2, 3),
    Sketcher.Constraint("Equal", 3, 4),
    Sketcher.Constraint("Equal", 4, 5),
    Sketcher.Constraint("Equal", 5, 6),
    Sketcher.Constraint("Equal", 6, 7),
    Sketcher.Constraint("Horizontal", 0, 3, 1, 3),
    Sketcher.Constraint("Horizontal", 1, 3, 2, 3),
    Sketcher.Constraint("Horizontal", 2, 3, 3, 3),
    Sketcher.Constraint("Horizontal", 4, 3, 5, 3),
    Sketcher.Constraint("Horizontal", 5, 3, 6, 3),
    Sketcher.Constraint("Horizontal", 6, 3, 7, 3),
    Sketcher.Constraint("Vertical", 3, 3, 4, 3),
    Sketcher.Constraint("Vertical", 2, 3, 5, 3),
    Sketcher.Constraint("Vertical", 1, 3, 6, 3),
    Sketcher.Constraint("Vertical", 0, 3, 7, 3),
    Sketcher.Constraint("Diameter", 0, Q("2.4 mm")),
    Sketcher.Constraint("DistanceX", 1, 3, 0, 3, Q("130 mm")),
    Sketcher.Constraint("DistanceX", 3, 3, 2, 3, Q("130 mm")),
    Sketcher.Constraint("DistanceX", 2, 3, 1, 3, Q("130.25 mm")),
    Sketcher.Constraint("DistanceY", 3, 3, 4, 3, Q("100.25 mm")),
    Sketcher.Constraint("DistanceX", 0, 3, -1, 1, Q("5.375 mm")),
    Sketcher.Constraint("DistanceY", 0, 3, -1, 1, Q("105.625 mm")),
])
sketch12.setExpression("Constraints[17]", "Params.sketch12_diameter")
doc.recompute()
hole = body.newObject("PartDesign::Hole", "Hole")
hole.Profile = sketch12
hole.ThreadType = "None"
hole.setExpression("Diameter", "Params.hole_diameter")
hole.DepthType = "ThroughAll"
hole.HoleCutType = "Counterbore"
hole.setExpression("HoleCutDiameter", "Params.hole_cbore_diameter")
hole.setExpression("HoleCutDepth", "Params.hole_cbore_depth")

# Sketch on XZ plane
sketch13 = body.newObject("Sketcher::SketchObject", "Sketch012")
sketch13.AttachmentSupport = (doc.getObject("XZ_Plane"), [""])
sketch13.MapMode = "FlatFace"
sketch13.AttachmentOffset = App.Placement(App.Vector(0, 0, -13.5), App.Rotation())
sketch13.addGeometry([
    Part.LineSegment(App.Vector(-413.27915, -120.203846, 0), App.Vector(-413.27915, 13.949849, 0)),
    Part.LineSegment(App.Vector(-413.27915, 13.949849, 0), App.Vector(14.177551, 13.949849, 0)),
    Part.LineSegment(App.Vector(14.177551, 13.949849, 0), App.Vector(14.177551, -120.203846, 0)),
    Part.LineSegment(App.Vector(14.177551, -120.203846, 0), App.Vector(-413.27915, -120.203846, 0)),
], False)
sketch13.addConstraint([
    Sketcher.Constraint("Coincident", 0, 2, 1, 1),
    Sketcher.Constraint("Coincident", 1, 2, 2, 1),
    Sketcher.Constraint("Coincident", 2, 2, 3, 1),
    Sketcher.Constraint("Coincident", 3, 2, 0, 1),
    Sketcher.Constraint("Vertical", 0),
    Sketcher.Constraint("Horizontal", 1),
    Sketcher.Constraint("Vertical", 2),
    Sketcher.Constraint("Horizontal", 3),
    Sketcher.Constraint("DistanceX", 1, 1, 1, 2, Q("427.456702 mm")),
    Sketcher.Constraint("DistanceY", 0, 1, 0, 2, Q("134.153695 mm")),
    Sketcher.Constraint("DistanceX", 0, 2, -1, 1, Q("413.27915 mm")),
    Sketcher.Constraint("DistanceY", -1, 1, 0, 2, Q("13.949849 mm")),
])
pocket9 = body.newObject("PartDesign::Pocket", "Pocket008")
pocket9.Profile = sketch13
pocket9.setExpression("Length", "Params.pocket9_length")
pocket9.Reversed = True

# Sketch on XZ plane
sketch14 = body.newObject("Sketcher::SketchObject", "Sketch013")
sketch14.AttachmentSupport = (doc.getObject("XZ_Plane"), [""])
sketch14.MapMode = "FlatFace"
sketch14.AttachmentOffset = App.Placement(App.Vector(0, 0, -5), App.Rotation())
sketch14.addGeometry(Part.Circle(App.Vector(-200.5, -55.5, 0), App.Vector(0, 0, 1), 45), False)
sketch14.addConstraint([
    Sketcher.Constraint("Diameter", 0, Q("90 mm")),
    Sketcher.Constraint("DistanceX", 0, 3, -1, 1, Q("200.5 mm")),
    Sketcher.Constraint("DistanceY", 0, 3, -1, 1, Q("55.5 mm")),
])
sketch14.setExpression("Constraints[0]", "Params.sketch14_diameter")
pad4 = body.newObject("PartDesign::Pad", "Pad003")
pad4.Profile = sketch14
pad4.setExpression("Length", "Params.pad4_length")

# Sketch on YZ plane
sketch15 = body.newObject("Sketcher::SketchObject", "Sketch014")
sketch15.AttachmentSupport = (doc.getObject("YZ_Plane"), [""])
sketch15.MapMode = "FlatFace"
sketch15.AttachmentOffset = App.Placement(App.Vector(0, 0, -376), App.Rotation())
sketch15.addGeometry([
    Part.LineSegment(App.Vector(1.5, -86, 0), App.Vector(5, -86, 0)),  # 0
    Part.LineSegment(App.Vector(5, -86, 0), App.Vector(5, -81, 0)),  # 1
    Part.LineSegment(App.Vector(5, -81, 0), App.Vector(2.25, -83.75, 0)),  # 2
    Part.LineSegment(App.Vector(2.25, -83.75, 0), App.Vector(1.5, -83.75, 0)),  # 3
    Part.LineSegment(App.Vector(1.5, -83.75, 0), App.Vector(1.5, -86, 0)),  # 4
], False)
sketch15.addGeometry(Part.LineSegment(App.Vector(5, -86, 0), App.Vector(1.5, -86, 0)), True)  # axis
sketch15.addConstraint([
    Sketcher.Constraint("Coincident", 0, 2, 1, 1),
    Sketcher.Constraint("Coincident", 1, 2, 2, 1),
    Sketcher.Constraint("Coincident", 2, 2, 3, 1),
    Sketcher.Constraint("Coincident", 3, 2, 4, 1),
    Sketcher.Constraint("Coincident", 4, 2, 0, 1),
    Sketcher.Constraint("Horizontal", 0),
    Sketcher.Constraint("Vertical", 1),
    Sketcher.Constraint("Horizontal", 3),
    Sketcher.Constraint("Vertical", 4),
    Sketcher.Constraint("Horizontal", 5),
    Sketcher.Constraint("Coincident", 5, 1, 0, 2),
    Sketcher.Constraint("Vertical", 3, 2, 5, 2),
    Sketcher.Constraint("DistanceY", 1, 1, 1, 2, Q("5 mm")),
    Sketcher.Constraint("Angle", 2, Q("-135 deg")),
    Sketcher.Constraint("DistanceX", 0, 1, 0, 2, Q("3.5 mm")),
    Sketcher.Constraint("DistanceX", -1, 1, 0, 2, Q("5 mm")),
    Sketcher.Constraint("DistanceY", 0, 2, -1, 1, Q("86 mm")),
    Sketcher.Constraint("DistanceX", 3, 2, 3, 1, Q("0.75 mm")),
])
sketch15.setExpression("Constraints[12]", "Params.sketch15_height")
sketch15.setExpression("Constraints[14]", "Params.sketch15_width")
sketch15.setExpression("Constraints[17]", "Params.sketch15_width2")
groove = body.newObject("PartDesign::Groove", "Groove")
groove.Profile = sketch15
groove.ReferenceAxis = (sketch15, ["Axis0"])
groove.setExpression("Angle", "Params.groove_angle")
doc.recompute()

linearpattern = body.newObject("PartDesign::LinearPattern", "LinearPattern")
linearpattern.Originals = [groove]
linearpattern.Direction = (doc.getObject("X_Axis"), [""])
linearpattern.Mode = "offset"
linearpattern.setExpression("Offset", "Params.linearpattern_pitch")
linearpattern.Occurrences = 2
body.Tip = linearpattern
doc.recompute()

fillet5 = body.newObject("PartDesign::Fillet", "Fillet004")
fillet5.Base = (linearpattern, edges_at(linearpattern, [
    (-263.822, 9.625, -6.5),
    (-267.428, 9.625, -6.5),
    (-133.572, 9.625, -6.5),
    (-137.178, 9.625, -6.5),
    (-137.178, 9.625, -104.5),
    (-133.572, 9.625, -104.5),
    (-267.428, 9.625, -104.5),
    (-263.822, 9.625, -104.5),
]))
fillet5.setExpression("Radius", "Params.fillet5_radius")

# Sketch on XZ plane
sketch16 = body.newObject("Sketcher::SketchObject", "Sketch015")
sketch16.AttachmentSupport = (doc.getObject("XZ_Plane"), [""])
sketch16.MapMode = "FlatFace"
sketch16.AttachmentOffset = App.Placement(App.Vector(0, 0, -13.25), App.Rotation())
sketch16.addGeometry([
    Part.LineSegment(App.Vector(-415.813499, -130.440784, 0), App.Vector(-415.813499, 43.619855, 0)),  # 0
    Part.LineSegment(App.Vector(-415.813499, 43.619855, 0), App.Vector(56.458298, 43.619855, 0)),  # 1
    Part.LineSegment(App.Vector(56.458298, 43.619855, 0), App.Vector(56.458298, -130.440784, 0)),  # 2
    Part.LineSegment(App.Vector(56.458298, -130.440784, 0), App.Vector(-415.813499, -130.440784, 0)),  # 3
    Part.LineSegment(App.Vector(-393, -108.875, 0), App.Vector(-8, -108.875, 0)),  # 4
    Part.ArcOfCircle(Part.Circle(App.Vector(-8, -103, 0), App.Vector(0, 0, 1), 5.875), math.radians(-90), math.radians(0)),  # 5
    Part.LineSegment(App.Vector(-2.125, -103, 0), App.Vector(-2.125, -8, 0)),  # 6
    Part.ArcOfCircle(Part.Circle(App.Vector(-8, -8, 0), App.Vector(0, 0, 1), 5.875), math.radians(0), math.radians(90)),  # 7
    Part.LineSegment(App.Vector(-8, -2.125, 0), App.Vector(-393, -2.125, 0)),  # 8
    Part.ArcOfCircle(Part.Circle(App.Vector(-393, -8, 0), App.Vector(0, 0, 1), 5.875), math.radians(90), math.radians(180)),  # 9
    Part.LineSegment(App.Vector(-398.875, -8, 0), App.Vector(-398.875, -103, 0)),  # 10
    Part.ArcOfCircle(Part.Circle(App.Vector(-393, -103, 0), App.Vector(0, 0, 1), 5.875), math.radians(-180), math.radians(-90)),  # 11
], False)
sketch16.addConstraint([
    Sketcher.Constraint("Coincident", 0, 2, 1, 1),
    Sketcher.Constraint("Coincident", 1, 2, 2, 1),
    Sketcher.Constraint("Coincident", 2, 2, 3, 1),
    Sketcher.Constraint("Coincident", 3, 2, 0, 1),
    Sketcher.Constraint("Tangent", 4, 2, 5, 1),
    Sketcher.Constraint("Tangent", 5, 2, 6, 1),
    Sketcher.Constraint("Tangent", 6, 2, 7, 1),
    Sketcher.Constraint("Tangent", 7, 2, 8, 1),
    Sketcher.Constraint("Tangent", 8, 2, 9, 1),
    Sketcher.Constraint("Tangent", 9, 2, 10, 1),
    Sketcher.Constraint("Tangent", 10, 2, 11, 1),
    Sketcher.Constraint("Tangent", 11, 2, 4, 1),
    Sketcher.Constraint("Vertical", 0),
    Sketcher.Constraint("Horizontal", 1),
    Sketcher.Constraint("Vertical", 2),
    Sketcher.Constraint("Horizontal", 3),
    Sketcher.Constraint("Horizontal", 4),
    Sketcher.Constraint("Vertical", 6),
    Sketcher.Constraint("Horizontal", 8),
    Sketcher.Constraint("Vertical", 10),
    Sketcher.Constraint("Equal", 5, 7),
    Sketcher.Constraint("Equal", 7, 9),
    Sketcher.Constraint("Equal", 9, 11),
    Sketcher.Constraint("DistanceX", 4, 1, 4, 2, Q("385 mm")),
    Sketcher.Constraint("DistanceY", 6, 1, 6, 2, Q("95 mm")),
    Sketcher.Constraint("DistanceX", 5, 3, -1, 1, Q("8 mm")),
    Sketcher.Constraint("DistanceY", 5, 3, -1, 1, Q("103 mm")),
    Sketcher.Constraint("Radius", 5, Q("5.875 mm")),
    Sketcher.Constraint("DistanceY", 0, 1, 0, 2, Q("174.060638 mm")),
    Sketcher.Constraint("DistanceX", 0, 2, -1, 1, Q("415.813499 mm")),
    Sketcher.Constraint("DistanceX", 1, 1, 1, 2, Q("472.271796 mm")),
    Sketcher.Constraint("DistanceY", -1, 1, 0, 2, Q("43.619855 mm")),
])
sketch16.setExpression("Constraints[23]", "Params.sketch16_width")
sketch16.setExpression("Constraints[24]", "Params.sketch16_height")
pocket10 = body.newObject("PartDesign::Pocket", "Pocket009")
pocket10.Profile = sketch16
pocket10.setExpression("Length", "Params.pocket10_length")
pocket10.Reversed = True

doc.recompute()
